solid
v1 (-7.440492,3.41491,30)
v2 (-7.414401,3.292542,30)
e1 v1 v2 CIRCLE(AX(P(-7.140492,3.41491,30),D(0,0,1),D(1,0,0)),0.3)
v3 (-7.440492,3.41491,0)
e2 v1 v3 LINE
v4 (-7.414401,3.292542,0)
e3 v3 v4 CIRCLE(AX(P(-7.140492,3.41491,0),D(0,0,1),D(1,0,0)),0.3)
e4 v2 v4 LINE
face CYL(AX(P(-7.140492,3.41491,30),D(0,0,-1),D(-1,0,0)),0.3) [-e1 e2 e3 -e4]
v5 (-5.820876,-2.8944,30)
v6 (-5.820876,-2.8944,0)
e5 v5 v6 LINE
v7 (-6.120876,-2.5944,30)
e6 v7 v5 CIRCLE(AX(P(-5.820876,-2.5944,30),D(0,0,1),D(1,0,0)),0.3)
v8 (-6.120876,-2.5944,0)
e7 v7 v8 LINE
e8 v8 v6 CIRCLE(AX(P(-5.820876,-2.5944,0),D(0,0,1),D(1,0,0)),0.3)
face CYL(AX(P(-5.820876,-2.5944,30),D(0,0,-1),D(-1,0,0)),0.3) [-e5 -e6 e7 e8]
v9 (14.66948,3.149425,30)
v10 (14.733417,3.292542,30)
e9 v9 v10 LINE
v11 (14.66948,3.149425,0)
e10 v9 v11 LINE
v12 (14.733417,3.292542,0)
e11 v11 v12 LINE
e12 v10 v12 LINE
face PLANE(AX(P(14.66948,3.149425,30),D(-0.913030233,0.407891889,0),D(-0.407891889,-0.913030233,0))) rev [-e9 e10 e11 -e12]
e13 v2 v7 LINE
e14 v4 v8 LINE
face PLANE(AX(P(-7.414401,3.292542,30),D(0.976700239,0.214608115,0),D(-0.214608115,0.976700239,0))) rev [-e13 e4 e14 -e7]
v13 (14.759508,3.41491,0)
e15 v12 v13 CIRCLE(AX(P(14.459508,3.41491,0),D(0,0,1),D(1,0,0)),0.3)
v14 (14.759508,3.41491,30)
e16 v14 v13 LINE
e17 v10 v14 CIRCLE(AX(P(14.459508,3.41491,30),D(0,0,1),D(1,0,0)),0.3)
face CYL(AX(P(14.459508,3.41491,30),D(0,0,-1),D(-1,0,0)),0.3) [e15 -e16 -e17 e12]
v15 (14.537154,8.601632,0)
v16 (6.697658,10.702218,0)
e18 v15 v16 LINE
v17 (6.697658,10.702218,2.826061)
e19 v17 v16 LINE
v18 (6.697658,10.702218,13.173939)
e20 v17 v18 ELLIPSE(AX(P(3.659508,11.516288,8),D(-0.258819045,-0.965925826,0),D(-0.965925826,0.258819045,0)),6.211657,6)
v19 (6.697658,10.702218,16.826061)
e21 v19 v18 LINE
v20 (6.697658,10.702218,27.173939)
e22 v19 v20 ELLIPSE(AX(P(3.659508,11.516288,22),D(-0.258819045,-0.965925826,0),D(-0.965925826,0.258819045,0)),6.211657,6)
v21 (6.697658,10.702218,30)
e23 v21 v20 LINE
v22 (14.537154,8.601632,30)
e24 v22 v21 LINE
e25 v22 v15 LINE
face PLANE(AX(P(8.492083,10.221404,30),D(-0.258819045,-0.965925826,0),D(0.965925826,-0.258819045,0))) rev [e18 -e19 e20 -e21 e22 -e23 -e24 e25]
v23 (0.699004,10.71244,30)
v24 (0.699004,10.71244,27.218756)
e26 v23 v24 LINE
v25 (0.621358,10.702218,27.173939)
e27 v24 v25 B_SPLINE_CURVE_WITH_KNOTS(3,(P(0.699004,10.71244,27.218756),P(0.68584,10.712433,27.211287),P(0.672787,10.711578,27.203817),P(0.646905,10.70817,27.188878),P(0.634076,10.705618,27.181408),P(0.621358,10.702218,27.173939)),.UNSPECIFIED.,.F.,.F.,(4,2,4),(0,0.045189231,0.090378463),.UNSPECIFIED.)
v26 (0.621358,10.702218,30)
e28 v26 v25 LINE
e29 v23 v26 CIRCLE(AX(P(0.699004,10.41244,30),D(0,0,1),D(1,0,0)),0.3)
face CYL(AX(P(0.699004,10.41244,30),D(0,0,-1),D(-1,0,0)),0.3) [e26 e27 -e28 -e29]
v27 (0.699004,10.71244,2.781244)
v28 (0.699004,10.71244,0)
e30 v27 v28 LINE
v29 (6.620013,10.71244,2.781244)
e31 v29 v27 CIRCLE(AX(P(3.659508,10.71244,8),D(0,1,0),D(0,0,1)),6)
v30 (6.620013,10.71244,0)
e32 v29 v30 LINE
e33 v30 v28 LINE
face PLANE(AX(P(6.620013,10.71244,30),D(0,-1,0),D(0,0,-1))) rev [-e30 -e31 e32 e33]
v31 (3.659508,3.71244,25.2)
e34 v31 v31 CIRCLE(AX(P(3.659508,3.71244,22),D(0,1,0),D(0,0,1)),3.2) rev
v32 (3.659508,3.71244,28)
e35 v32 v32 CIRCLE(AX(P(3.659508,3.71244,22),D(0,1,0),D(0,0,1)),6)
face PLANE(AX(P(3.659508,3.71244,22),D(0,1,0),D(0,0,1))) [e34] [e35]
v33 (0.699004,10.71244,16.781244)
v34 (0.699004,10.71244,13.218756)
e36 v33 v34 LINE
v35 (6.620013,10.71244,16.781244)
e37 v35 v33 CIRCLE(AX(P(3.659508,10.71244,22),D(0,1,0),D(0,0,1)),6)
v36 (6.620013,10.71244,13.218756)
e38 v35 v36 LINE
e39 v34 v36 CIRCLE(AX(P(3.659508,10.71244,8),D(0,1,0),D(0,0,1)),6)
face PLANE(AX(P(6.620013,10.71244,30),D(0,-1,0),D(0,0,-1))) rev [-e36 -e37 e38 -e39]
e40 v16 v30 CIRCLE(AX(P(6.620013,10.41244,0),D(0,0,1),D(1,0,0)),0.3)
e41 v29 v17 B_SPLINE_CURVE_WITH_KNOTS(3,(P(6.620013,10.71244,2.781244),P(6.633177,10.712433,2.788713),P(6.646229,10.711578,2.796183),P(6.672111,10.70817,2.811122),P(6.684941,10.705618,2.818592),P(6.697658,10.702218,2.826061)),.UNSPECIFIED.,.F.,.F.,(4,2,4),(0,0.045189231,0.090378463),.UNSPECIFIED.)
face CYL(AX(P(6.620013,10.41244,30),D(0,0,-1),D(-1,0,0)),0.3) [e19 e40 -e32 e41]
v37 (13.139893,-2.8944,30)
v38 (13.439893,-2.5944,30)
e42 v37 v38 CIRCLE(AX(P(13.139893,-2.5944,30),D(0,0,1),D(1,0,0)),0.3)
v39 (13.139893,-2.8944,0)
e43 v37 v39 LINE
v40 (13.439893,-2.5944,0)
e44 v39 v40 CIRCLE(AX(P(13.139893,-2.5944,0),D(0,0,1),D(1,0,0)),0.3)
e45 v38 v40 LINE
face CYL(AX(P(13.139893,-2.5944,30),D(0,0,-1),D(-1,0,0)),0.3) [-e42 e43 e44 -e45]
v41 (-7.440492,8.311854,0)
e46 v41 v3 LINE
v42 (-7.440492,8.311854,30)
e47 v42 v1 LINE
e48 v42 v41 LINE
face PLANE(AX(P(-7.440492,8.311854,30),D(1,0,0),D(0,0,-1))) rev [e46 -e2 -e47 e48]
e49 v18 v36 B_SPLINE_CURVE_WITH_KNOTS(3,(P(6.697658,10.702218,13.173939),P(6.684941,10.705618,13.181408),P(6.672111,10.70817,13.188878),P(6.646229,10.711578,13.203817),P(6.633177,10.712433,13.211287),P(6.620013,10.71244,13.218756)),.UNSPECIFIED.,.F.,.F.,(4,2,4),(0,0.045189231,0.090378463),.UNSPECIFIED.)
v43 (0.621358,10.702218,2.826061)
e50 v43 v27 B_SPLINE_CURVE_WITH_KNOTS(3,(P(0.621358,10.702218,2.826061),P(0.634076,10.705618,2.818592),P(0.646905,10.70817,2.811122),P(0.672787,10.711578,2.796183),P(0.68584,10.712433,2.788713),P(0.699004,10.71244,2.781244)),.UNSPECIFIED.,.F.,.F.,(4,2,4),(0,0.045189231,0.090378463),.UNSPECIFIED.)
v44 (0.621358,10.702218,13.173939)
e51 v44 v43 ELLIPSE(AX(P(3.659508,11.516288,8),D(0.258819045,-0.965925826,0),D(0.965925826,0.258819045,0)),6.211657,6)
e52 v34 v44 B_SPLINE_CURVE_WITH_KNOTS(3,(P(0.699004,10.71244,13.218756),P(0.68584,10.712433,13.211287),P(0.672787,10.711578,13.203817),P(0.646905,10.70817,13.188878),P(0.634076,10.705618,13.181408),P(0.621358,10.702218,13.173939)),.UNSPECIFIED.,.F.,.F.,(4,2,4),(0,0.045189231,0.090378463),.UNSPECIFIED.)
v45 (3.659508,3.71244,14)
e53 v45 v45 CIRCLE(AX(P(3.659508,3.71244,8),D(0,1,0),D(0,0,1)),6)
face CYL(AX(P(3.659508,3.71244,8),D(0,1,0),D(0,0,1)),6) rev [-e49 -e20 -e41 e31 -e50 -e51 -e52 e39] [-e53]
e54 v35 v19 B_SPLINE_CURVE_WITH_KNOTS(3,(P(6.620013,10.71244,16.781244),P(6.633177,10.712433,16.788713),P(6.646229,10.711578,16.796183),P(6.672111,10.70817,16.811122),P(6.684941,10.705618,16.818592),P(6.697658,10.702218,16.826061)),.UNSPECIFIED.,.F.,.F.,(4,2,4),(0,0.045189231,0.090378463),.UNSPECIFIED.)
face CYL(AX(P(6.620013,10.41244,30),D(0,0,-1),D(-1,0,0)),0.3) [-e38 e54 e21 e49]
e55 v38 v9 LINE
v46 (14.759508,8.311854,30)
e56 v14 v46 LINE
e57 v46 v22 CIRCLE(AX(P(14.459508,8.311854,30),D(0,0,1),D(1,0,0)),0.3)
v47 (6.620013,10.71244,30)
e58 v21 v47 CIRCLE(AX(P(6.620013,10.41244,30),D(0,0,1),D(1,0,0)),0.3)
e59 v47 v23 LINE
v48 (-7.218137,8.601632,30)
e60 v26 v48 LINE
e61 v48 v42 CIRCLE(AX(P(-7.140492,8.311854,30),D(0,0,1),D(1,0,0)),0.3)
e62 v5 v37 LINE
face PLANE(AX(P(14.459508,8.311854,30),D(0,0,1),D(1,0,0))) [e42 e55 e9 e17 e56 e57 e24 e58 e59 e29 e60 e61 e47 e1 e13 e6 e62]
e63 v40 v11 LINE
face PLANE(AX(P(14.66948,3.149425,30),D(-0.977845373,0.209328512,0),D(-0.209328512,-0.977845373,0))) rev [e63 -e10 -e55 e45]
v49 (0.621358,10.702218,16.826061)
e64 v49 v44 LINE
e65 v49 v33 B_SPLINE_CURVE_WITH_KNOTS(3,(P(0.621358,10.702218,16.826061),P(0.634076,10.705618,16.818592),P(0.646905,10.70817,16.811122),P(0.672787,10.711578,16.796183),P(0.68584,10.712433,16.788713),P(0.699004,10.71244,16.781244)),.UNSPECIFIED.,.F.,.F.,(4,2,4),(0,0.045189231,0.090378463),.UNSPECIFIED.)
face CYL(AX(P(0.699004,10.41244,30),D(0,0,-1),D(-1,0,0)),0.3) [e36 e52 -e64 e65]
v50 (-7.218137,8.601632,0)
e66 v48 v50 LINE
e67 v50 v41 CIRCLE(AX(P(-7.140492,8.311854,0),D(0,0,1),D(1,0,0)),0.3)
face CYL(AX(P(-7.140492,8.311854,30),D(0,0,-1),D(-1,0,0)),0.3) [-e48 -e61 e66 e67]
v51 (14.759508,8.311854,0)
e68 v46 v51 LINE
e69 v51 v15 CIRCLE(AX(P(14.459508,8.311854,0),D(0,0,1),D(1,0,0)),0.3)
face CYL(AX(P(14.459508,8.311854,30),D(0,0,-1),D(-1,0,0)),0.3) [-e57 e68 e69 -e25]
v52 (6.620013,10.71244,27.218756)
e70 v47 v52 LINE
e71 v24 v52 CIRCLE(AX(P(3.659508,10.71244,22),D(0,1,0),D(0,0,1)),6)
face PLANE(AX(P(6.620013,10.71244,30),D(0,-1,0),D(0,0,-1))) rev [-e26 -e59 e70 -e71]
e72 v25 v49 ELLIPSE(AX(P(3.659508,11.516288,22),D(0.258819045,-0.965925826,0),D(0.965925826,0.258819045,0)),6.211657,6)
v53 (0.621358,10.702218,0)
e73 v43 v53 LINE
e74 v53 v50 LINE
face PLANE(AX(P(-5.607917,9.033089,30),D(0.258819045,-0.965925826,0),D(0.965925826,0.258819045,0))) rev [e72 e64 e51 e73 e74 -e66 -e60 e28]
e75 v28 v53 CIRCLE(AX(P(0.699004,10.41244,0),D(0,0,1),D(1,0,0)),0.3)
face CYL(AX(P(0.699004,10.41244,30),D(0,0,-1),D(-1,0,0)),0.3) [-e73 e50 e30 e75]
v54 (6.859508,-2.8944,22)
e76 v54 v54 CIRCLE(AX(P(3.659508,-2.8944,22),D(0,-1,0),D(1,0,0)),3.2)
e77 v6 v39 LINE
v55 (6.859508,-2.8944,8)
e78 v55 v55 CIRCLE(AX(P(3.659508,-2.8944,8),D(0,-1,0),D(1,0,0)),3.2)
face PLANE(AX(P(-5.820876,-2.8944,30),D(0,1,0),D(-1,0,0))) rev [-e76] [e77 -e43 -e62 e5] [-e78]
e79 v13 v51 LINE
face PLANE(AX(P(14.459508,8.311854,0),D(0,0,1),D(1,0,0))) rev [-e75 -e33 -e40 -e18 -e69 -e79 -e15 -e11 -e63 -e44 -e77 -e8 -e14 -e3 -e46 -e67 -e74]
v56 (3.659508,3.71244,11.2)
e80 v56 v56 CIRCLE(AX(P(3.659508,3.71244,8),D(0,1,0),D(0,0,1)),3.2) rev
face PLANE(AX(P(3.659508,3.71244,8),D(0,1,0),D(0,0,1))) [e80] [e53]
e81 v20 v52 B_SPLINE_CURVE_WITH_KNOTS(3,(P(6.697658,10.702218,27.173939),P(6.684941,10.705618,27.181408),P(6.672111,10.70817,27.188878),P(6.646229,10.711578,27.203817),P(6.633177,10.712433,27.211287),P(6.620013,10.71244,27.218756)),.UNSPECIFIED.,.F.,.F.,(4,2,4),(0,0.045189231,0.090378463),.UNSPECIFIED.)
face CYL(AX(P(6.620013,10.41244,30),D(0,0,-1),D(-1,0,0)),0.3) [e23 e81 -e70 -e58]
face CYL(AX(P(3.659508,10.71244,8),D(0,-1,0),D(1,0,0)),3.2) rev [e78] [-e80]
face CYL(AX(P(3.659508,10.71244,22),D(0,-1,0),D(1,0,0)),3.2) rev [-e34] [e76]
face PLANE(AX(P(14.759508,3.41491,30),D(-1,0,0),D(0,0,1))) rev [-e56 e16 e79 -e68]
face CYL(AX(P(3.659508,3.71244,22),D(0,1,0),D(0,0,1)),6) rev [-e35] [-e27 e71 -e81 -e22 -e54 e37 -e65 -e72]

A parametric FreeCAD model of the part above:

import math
import FreeCAD as App
import Part
import Sketcher
from FreeCAD import Vector
Q = App.Units.Quantity

doc = App.newDocument("Part")
body = doc.addObject("PartDesign::Body", "Body")

# Sketch on XY plane
sketch1 = doc.addObject("Sketcher::SketchObject", "Sketch")
body.addObject(sketch1)
sketch1.AttachmentSupport = (doc.XY_Plane, [""])
sketch1.MapMode = "FlatFace"
sketch1.addGeometry(Part.LineSegment(Vector(-1.17, 10.22, 0), Vector(-5.61, 9.03, 0)), False)
sketch1.addGeometry(Part.LineSegment(Vector(-5.61, 9.03, 0), Vector(-7.22, 8.6, 0)), False)
sketch1.addGeometry(Part.ArcOfCircle(Part.Circle(Vector(-7.14, 8.31, 0), Vector(0, 0, 1), 0.3), math.radians(105), math.radians(180)), False)
sketch1.addGeometry(Part.LineSegment(Vector(-7.44, 8.31, 0), Vector(-7.44, 3.41, 0)), False)
sketch1.addGeometry(Part.ArcOfCircle(Part.Circle(Vector(-7.14, 3.41, 0), Vector(0, 0, 1), 0.3), math.radians(180), math.radians(204)), False)
sketch1.addGeometry(Part.LineSegment(Vector(-7.41, 3.29, 0), Vector(-6.12, -2.59, 0)), False)
sketch1.addGeometry(Part.ArcOfCircle(Part.Circle(Vector(-5.82, -2.59, 0), Vector(0, 0, 1), 0.3), math.radians(-180), math.radians(-90)), False)
sketch1.addGeometry(Part.LineSegment(Vector(-5.82, -2.89, 0), Vector(13.14, -2.89, 0)), False)
sketch1.addGeometry(Part.ArcOfCircle(Part.Circle(Vector(13.14, -2.59, 0), Vector(0, 0, 1), 0.3), math.radians(-90), math.radians(0)), False)
sketch1.addGeometry(Part.LineSegment(Vector(13.44, -2.59, 0), Vector(14.67, 3.15, 0)), False)
sketch1.addGeometry(Part.LineSegment(Vector(14.67, 3.15, 0), Vector(14.73, 3.29, 0)), False)
sketch1.addGeometry(Part.ArcOfCircle(Part.Circle(Vector(14.46, 3.41, 0), Vector(0, 0, 1), 0.3), math.radians(-24), math.radians(0)), False)
sketch1.addGeometry(Part.LineSegment(Vector(14.76, 3.41, 0), Vector(14.76, 8.31, 0)), False)
sketch1.addGeometry(Part.ArcOfCircle(Part.Circle(Vector(14.46, 8.31, 0), Vector(0, 0, 1), 0.3), math.radians(0), math.radians(75)), False)
sketch1.addGeometry(Part.LineSegment(Vector(14.54, 8.6, 0), Vector(12.93, 9.03, 0)), False)
sketch1.addGeometry(Part.LineSegment(Vector(12.93, 9.03, 0), Vector(8.49, 10.22, 0)), False)
sketch1.addGeometry(Part.LineSegment(Vector(8.49, 10.22, 0), Vector(6.7, 10.7, 0)), False)
sketch1.addGeometry(Part.ArcOfCircle(Part.Circle(Vector(6.62, 10.41, 0), Vector(0, 0, 1), 0.3), math.radians(75), math.radians(90)), False)
sketch1.addGeometry(Part.LineSegment(Vector(6.62, 10.71, 0), Vector(0.7, 10.71, 0)), False)
sketch1.addGeometry(Part.ArcOfCircle(Part.Circle(Vector(0.7, 10.41, 0), Vector(0, 0, 1), 0.3), math.radians(90), math.radians(105)), False)
sketch1.addGeometry(Part.LineSegment(Vector(0.62, 10.7, 0), Vector(-1.17, 10.22, 0)), False)
sketch1.addConstraint(Sketcher.Constraint("Coincident", 0, 2, 1, 1))
sketch1.addConstraint(Sketcher.Constraint("Tangent", 1, 2, 2, 1))
sketch1.addConstraint(Sketcher.Constraint("Tangent", 2, 2, 3, 1))
sketch1.addConstraint(Sketcher.Constraint("Tangent", 3, 2, 4, 1))
sketch1.addConstraint(Sketcher.Constraint("Coincident", 4, 2, 5, 1))
sketch1.addConstraint(Sketcher.Constraint("Coincident", 5, 2, 6, 1))
sketch1.addConstraint(Sketcher.Constraint("Tangent", 6, 2, 7, 1))
sketch1.addConstraint(Sketcher.Constraint("Tangent", 7, 2, 8, 1))
sketch1.addConstraint(Sketcher.Constraint("Coincident", 8, 2, 9, 1))
sketch1.addConstraint(Sketcher.Constraint("Coincident", 9, 2, 10, 1))
sketch1.addConstraint(Sketcher.Constraint("Tangent", 10, 2, 11, 1))
sketch1.addConstraint(Sketcher.Constraint("Tangent", 11, 2, 12, 1))
sketch1.addConstraint(Sketcher.Constraint("Tangent", 12, 2, 13, 1))
sketch1.addConstraint(Sketcher.Constraint("Tangent", 13, 2, 14, 1))
sketch1.addConstraint(Sketcher.Constraint("Coincident", 14, 2, 15, 1))
sketch1.addConstraint(Sketcher.Constraint("Coincident", 15, 2, 16, 1))
sketch1.addConstraint(Sketcher.Constraint("Tangent", 16, 2, 17, 1))
sketch1.addConstraint(Sketcher.Constraint("Tangent", 17, 2, 18, 1))
sketch1.addConstraint(Sketcher.Constraint("Tangent", 18, 2, 19, 1))
sketch1.addConstraint(Sketcher.Constraint("Tangent", 19, 2, 20, 1))
sketch1.addConstraint(Sketcher.Constraint("Coincident", 20, 2, 0, 1))
sketch1.addConstraint(Sketcher.Constraint("Vertical", 3))
sketch1.addConstraint(Sketcher.Constraint("Horizontal", 7))
sketch1.addConstraint(Sketcher.Constraint("Vertical", 12))
sketch1.addConstraint(Sketcher.Constraint("Horizontal", 18))
sketch1.addConstraint(Sketcher.Constraint("Equal", 2, 4))
sketch1.addConstraint(Sketcher.Constraint("Equal", 4, 6))
sketch1.addConstraint(Sketcher.Constraint("Equal", 6, 8))
sketch1.addConstraint(Sketcher.Constraint("Equal", 8, 11))
sketch1.addConstraint(Sketcher.Constraint("Equal", 11, 13))
sketch1.addConstraint(Sketcher.Constraint("Equal", 13, 17))
sketch1.addConstraint(Sketcher.Constraint("Equal", 17, 19))
sketch1.addConstraint(Sketcher.Constraint("Parallel", 0, 1))
sketch1.addConstraint(Sketcher.Constraint("Parallel", 14, 15))
sketch1.addConstraint(Sketcher.Constraint("Parallel", 15, 16))
sketch1.addConstraint(Sketcher.Constraint("Parallel", 1, 20))
sketch1.addConstraint(Sketcher.Constraint("Horizontal", 4, 3, 11, 3))
sketch1.addConstraint(Sketcher.Constraint("Horizontal", 2, 3, 13, 3))
sketch1.addConstraint(Sketcher.Constraint("Horizontal", 8, 3, 5, 2))
sketch1.addConstraint(Sketcher.Constraint("Horizontal", 5, 2, 8, 2))
sketch1.addConstraint(Sketcher.Constraint("Horizontal", 4, 2, 10, 2))
sketch1.addConstraint(Sketcher.Constraint("Horizontal", 0, 2, 14, 2))
sketch1.addConstraint(Sketcher.Constraint("Horizontal", 15, 2, 20, 2))
sketch1.addConstraint(Sketcher.Constraint("Equal", 1, 14))
sketch1.addConstraint(Sketcher.Constraint("Radius", 2, Q("0.3 mm")))
sketch1.addConstraint(Sketcher.Constraint("Angle", 0, Q("-165 deg")))
sketch1.addConstraint(Sketcher.Constraint("DistanceX", 4, 3, 11, 3, Q("21.6 mm")))
sketch1.addConstraint(Sketcher.Constraint("DistanceX", 7, 1, 7, 2, Q("18.96077 mm")))
sketch1.addConstraint(Sketcher.Constraint("DistanceX", 18, 2, 18, 1, Q("5.921009 mm")))
sketch1.addConstraint(Sketcher.Constraint("DistanceY", 6, 3, -1, 1, Q("2.5944 mm")))
sketch1.addConstraint(Sketcher.Constraint("DistanceX", 4, 2, -1, 1, Q("7.414401 mm")))
sketch1.addConstraint(Sketcher.Constraint("Distance", 5, Q("6.027378 mm")))
sketch1.addConstraint(Sketcher.Constraint("Distance", 9, Q("5.87396 mm")))
sketch1.addConstraint(Sketcher.Constraint("Distance", 10, Q("0.15675 mm")))
sketch1.addConstraint(Sketcher.Constraint("DistanceY", 3, 2, 3, 1, Q("4.896944 mm")))
sketch1.addConstraint(Sketcher.Constraint("DistanceX", 2, 3, -1, 1, Q("7.140492 mm")))
sketch1.addConstraint(Sketcher.Constraint("DistanceY", -1, 1, 0, 2, Q("9.033089 mm")))
sketch1.addConstraint(Sketcher.Constraint("DistanceX", 17, 3, 15, 2, Q("1.87207 mm")))
pad1 = doc.addObject("PartDesign::Pad", "Pad")
body.addObject(pad1)
pad1.Profile = sketch1
pad1.Length = 30

# Sketch on XZ plane
sketch2 = doc.addObject("Sketcher::SketchObject", "Sketch001")
body.addObject(sketch2)
sketch2.AttachmentSupport = (doc.XZ_Plane, [""])
sketch2.MapMode = "FlatFace"
sketch2.AttachmentOffset = App.Placement(Vector(0, 0, 2.8944), App.Rotation())
sketch2.addGeometry(Part.Circle(Vector(3.7, 22, 0), Vector(0, 0, 1), 3.2), False)
sketch2.addGeometry(Part.Circle(Vector(3.7, 8, 0), Vector(0, 0, 1), 3.2), False)
sketch2.addConstraint(Sketcher.Constraint("Equal", 0, 1))
sketch2.addConstraint(Sketcher.Constraint("Vertical", 0, 3, 1, 3))
sketch2.addConstraint(Sketcher.Constraint("Diameter", 0, Q("6.4 mm")))
sketch2.addConstraint(Sketcher.Constraint("DistanceY", -1, 1, 0, 3, Q("22 mm")))
sketch2.addConstraint(Sketcher.Constraint("DistanceY", -1, 1, 1, 3, Q("8 mm")))
sketch2.addConstraint(Sketcher.Constraint("DistanceX", -1, 1, 0, 3, Q("3.659508 mm")))
pocket1 = doc.addObject("PartDesign::Pocket", "Pocket")
body.addObject(pocket1)
pocket1.Profile = sketch2
pocket1.Type = "ThroughAll"

# Sketch on XZ plane
sketch3 = doc.addObject("Sketcher::SketchObject", "Sketch002")
body.addObject(sketch3)
sketch3.AttachmentSupport = (doc.XZ_Plane, [""])
sketch3.MapMode = "FlatFace"
sketch3.AttachmentOffset = App.Placement(Vector(0, 0, -10.71244), App.Rotation())
sketch3.addGeometry(Part.Circle(Vector(4, 8, 0), Vector(0, 0, 1), 6), False)
sketch3.addGeometry(Part.Circle(Vector(4, 22, 0), Vector(0, 0, 1), 6), False)
sketch3.addConstraint(Sketcher.Constraint("Equal", 0, 1))
sketch3.addConstraint(Sketcher.Constraint("Vertical", 0, 3, 1, 3))
sketch3.addConstraint(Sketcher.Constraint("Diameter", 0, Q("12 mm")))
sketch3.addConstraint(Sketcher.Constraint("DistanceY", -1, 1, 0, 3, Q("8 mm")))
sketch3.addConstraint(Sketcher.Constraint("DistanceY", -1, 1, 1, 3, Q("22 mm")))
sketch3.addConstraint(Sketcher.Constraint("DistanceX", -1, 1, 0, 3, Q("3.659508 mm")))
pocket2 = doc.addObject("PartDesign::Pocket", "Pocket001")
body.addObject(pocket2)
pocket2.Profile = sketch3
pocket2.Length = 7
pocket2.Reversed = True

doc.recompute()
